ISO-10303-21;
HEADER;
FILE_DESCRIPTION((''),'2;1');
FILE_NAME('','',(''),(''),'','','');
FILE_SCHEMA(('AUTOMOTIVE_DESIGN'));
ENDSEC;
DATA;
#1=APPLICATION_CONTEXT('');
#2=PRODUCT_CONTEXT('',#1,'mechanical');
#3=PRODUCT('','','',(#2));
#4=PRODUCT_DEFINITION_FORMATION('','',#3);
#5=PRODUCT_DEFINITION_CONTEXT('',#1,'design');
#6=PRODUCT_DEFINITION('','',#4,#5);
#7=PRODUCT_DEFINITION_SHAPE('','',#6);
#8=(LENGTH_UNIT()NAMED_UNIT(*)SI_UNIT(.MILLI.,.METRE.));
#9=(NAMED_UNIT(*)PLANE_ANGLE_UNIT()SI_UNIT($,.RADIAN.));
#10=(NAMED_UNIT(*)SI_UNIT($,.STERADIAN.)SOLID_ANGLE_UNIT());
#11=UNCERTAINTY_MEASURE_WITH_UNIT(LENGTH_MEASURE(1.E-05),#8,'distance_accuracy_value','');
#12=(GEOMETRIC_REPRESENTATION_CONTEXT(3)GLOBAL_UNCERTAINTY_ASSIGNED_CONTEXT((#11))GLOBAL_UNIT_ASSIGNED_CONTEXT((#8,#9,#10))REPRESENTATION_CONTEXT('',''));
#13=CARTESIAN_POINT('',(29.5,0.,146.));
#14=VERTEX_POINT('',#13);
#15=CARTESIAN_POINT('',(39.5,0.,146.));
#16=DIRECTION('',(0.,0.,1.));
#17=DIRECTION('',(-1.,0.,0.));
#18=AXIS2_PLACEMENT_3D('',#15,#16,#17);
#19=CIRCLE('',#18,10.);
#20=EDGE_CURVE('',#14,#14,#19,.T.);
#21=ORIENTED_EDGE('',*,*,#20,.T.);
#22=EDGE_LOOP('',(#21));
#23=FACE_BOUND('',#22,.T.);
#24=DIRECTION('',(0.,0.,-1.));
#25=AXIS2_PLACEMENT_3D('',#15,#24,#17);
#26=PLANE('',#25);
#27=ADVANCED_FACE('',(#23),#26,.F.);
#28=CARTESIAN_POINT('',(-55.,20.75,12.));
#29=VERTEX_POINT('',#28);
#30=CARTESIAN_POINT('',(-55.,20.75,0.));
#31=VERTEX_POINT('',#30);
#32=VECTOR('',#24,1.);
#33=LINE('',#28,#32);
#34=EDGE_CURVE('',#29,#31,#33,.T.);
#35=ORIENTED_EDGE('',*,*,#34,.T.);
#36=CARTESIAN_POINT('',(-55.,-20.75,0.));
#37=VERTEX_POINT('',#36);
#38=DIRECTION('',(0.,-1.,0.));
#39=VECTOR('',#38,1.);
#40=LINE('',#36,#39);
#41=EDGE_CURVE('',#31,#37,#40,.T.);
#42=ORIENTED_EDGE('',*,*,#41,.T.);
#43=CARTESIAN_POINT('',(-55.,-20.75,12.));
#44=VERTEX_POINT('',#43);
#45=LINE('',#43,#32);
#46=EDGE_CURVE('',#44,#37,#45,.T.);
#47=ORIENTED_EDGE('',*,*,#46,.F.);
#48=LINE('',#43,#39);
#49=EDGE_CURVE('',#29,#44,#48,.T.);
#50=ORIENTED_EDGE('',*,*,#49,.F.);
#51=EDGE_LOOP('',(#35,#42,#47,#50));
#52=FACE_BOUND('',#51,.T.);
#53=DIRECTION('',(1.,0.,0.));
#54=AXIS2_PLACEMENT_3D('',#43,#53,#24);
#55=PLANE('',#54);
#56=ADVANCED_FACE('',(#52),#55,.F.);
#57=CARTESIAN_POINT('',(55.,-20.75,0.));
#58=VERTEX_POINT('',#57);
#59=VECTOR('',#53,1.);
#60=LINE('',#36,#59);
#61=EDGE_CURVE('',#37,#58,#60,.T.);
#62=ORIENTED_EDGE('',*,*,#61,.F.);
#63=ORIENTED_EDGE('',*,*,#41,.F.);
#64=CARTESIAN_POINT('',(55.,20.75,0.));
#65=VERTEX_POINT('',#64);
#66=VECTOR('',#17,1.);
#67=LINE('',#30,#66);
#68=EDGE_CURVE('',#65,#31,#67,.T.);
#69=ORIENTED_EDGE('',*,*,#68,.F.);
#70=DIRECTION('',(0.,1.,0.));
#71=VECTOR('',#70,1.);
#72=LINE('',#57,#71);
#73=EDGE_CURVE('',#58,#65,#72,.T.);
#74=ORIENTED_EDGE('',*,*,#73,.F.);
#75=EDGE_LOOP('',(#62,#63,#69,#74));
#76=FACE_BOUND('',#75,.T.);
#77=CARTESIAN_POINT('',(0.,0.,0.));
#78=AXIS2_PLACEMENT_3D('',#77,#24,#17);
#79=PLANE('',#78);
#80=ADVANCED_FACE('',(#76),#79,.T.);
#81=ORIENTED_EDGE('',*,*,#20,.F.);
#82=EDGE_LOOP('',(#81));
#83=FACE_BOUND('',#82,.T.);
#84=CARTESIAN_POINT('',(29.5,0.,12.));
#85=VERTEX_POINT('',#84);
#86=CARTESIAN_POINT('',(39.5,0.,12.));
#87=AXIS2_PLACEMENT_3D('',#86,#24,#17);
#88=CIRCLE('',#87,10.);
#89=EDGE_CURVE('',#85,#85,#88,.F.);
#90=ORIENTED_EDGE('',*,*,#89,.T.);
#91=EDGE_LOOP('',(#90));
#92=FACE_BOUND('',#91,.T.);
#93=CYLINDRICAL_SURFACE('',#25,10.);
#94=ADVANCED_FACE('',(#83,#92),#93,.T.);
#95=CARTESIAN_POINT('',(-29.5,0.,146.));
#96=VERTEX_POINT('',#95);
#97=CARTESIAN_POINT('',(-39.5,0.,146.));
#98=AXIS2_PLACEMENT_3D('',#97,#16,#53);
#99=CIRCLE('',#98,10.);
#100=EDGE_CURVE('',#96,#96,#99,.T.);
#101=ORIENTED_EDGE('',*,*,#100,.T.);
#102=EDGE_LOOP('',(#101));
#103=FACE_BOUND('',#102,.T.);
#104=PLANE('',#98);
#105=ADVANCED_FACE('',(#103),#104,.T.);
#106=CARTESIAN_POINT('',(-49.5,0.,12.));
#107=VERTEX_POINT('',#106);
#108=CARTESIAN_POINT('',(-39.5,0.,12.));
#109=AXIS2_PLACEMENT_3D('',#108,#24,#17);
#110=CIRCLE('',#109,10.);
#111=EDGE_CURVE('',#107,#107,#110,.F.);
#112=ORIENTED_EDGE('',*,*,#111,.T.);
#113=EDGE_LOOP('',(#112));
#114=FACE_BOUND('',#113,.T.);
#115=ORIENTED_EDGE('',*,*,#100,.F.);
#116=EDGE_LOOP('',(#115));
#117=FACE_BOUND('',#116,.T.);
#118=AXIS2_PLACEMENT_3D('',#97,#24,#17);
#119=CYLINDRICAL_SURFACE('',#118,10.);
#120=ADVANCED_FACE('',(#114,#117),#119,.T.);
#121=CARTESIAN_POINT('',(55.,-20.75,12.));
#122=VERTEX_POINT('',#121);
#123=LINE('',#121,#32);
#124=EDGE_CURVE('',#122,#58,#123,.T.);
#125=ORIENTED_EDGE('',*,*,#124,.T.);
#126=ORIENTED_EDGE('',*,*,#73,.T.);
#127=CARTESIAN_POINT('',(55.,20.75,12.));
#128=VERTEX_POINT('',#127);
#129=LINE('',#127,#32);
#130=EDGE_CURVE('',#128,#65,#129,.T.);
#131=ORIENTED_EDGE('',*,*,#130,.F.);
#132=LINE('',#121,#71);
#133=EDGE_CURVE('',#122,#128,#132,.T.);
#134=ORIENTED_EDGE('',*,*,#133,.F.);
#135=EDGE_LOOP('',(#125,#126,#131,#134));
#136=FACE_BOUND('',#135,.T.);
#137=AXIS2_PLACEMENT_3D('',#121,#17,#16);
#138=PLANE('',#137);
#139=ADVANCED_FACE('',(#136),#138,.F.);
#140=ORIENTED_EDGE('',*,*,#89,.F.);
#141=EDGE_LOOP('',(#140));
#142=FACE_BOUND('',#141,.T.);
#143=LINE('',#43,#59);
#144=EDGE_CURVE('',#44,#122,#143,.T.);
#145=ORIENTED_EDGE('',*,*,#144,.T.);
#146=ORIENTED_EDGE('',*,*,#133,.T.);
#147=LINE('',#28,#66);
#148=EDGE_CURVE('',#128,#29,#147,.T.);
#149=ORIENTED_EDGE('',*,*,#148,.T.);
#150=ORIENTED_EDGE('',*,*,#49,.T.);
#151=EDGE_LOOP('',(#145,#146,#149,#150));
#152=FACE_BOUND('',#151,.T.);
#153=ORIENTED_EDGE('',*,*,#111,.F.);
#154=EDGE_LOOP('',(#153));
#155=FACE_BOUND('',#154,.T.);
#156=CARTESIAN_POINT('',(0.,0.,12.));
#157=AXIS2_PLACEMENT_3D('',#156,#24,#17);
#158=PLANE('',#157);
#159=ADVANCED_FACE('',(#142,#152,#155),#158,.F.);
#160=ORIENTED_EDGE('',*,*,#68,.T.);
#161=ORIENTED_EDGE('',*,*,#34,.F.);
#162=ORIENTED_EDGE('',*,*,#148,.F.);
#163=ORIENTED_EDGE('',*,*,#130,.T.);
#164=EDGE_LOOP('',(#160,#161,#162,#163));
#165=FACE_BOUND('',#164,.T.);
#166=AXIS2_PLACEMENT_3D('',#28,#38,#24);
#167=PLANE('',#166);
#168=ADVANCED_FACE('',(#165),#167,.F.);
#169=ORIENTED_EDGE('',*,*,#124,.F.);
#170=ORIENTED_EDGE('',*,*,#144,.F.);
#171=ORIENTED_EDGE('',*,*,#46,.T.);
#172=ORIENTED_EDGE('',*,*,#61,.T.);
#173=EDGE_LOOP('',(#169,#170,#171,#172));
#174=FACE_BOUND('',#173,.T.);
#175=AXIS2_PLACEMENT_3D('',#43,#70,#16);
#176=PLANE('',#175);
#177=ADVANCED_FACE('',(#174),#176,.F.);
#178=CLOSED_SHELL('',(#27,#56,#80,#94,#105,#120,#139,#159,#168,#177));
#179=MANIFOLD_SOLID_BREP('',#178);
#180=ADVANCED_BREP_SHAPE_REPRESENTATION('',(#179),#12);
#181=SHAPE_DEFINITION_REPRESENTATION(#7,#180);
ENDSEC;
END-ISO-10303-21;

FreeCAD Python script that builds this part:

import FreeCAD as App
import Part
import Sketcher

V = App.Vector
Q = App.Units.Quantity

doc = App.newDocument("Part")
body = doc.addObject("PartDesign::Body", "Body")

sketch1 = body.newObject("Sketcher::SketchObject", "Sketch")
sketch1.AttachmentSupport = (doc.getObject("XY_Plane"), [""])
sketch1.MapMode = "FlatFace"
sketch1.addGeometry([
    Part.LineSegment(V(-55, 21, 0), V(-55, -21, 0)),
    Part.LineSegment(V(-55, -21, 0), V(55, -21, 0)),
    Part.LineSegment(V(55, -21, 0), V(55, 21, 0)),
    Part.LineSegment(V(55, 21, 0), V(-55, 21, 0)),
], False)
sketch1.addConstraint([
    Sketcher.Constraint("Coincident", 0, 2, 1, 1),
    Sketcher.Constraint("Coincident", 1, 2, 2, 1),
    Sketcher.Constraint("Coincident", 2, 2, 3, 1),
    Sketcher.Constraint("Coincident", 3, 2, 0, 1),
    Sketcher.Constraint("Vertical", 0),
    Sketcher.Constraint("Horizontal", 1),
    Sketcher.Constraint("Vertical", 2),
    Sketcher.Constraint("Horizontal", 3),
    Sketcher.Constraint("Symmetric", 0, 2, 2, 2, -1, 1),
    Sketcher.Constraint("DistanceX", 1, 1, 1, 2, Q("110 mm")),
    Sketcher.Constraint("DistanceY", 0, 2, 0, 1, Q("41.5 mm")),
])
pad1 = body.newObject("PartDesign::Pad", "Pad")
pad1.Profile = sketch1
pad1.Length = 12

sketch2 = body.newObject("Sketcher::SketchObject", "Sketch001")
sketch2.AttachmentSupport = (doc.getObject("XY_Plane"), [""])
sketch2.MapMode = "FlatFace"
sketch2.AttachmentOffset = App.Placement(V(0, 0, 12), App.Rotation())
sketch2.addGeometry([
    Part.Circle(V(-40, 0, 0), V(0, 0, 1), 10),
    Part.Circle(V(40, 0, 0), V(0, 0, 1), 10),
], False)
sketch2.addConstraint([
    Sketcher.Constraint("Equal", 0, 1),
    Sketcher.Constraint("Symmetric", 0, 3, 1, 3, -1, 1),
    Sketcher.Constraint("PointOnObject", 0, 3, -1),
    Sketcher.Constraint("Diameter", 0, Q("20 mm")),
    Sketcher.Constraint("DistanceX", 0, 3, 1, 3, Q("79 mm")),
])
pad2 = body.newObject("PartDesign::Pad", "Pad001")
pad2.Profile = sketch2
pad2.Length = 134

doc.recompute()
